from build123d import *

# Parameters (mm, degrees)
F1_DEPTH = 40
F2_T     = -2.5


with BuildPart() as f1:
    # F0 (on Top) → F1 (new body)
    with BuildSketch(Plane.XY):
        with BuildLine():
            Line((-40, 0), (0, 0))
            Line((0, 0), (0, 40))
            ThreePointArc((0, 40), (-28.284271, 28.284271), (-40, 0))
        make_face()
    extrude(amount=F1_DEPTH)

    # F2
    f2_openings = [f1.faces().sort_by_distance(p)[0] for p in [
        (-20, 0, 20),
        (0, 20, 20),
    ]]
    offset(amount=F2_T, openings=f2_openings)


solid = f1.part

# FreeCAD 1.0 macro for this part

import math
import FreeCAD as App
import Part
import Sketcher
Q = App.Units.Quantity


def faces_at(feature, points):
    """Names of the faces that lie closest to the given points."""
    faces = feature.Shape.Faces
    near = lambda p: min(range(len(faces)), key=lambda i: faces[i].distToShape(Part.Vertex(*p))[0])
    return sorted({f"Face{near(p) + 1}" for p in points})

doc = App.newDocument("Part")
body = doc.addObject("PartDesign::Body", "Body")

# Sketch on XY plane
sketch1 = body.newObject("Sketcher::SketchObject", "Sketch")
sketch1.AttachmentSupport = (doc.getObject("XY_Plane"), [""])
sketch1.MapMode = "FlatFace"
sketch1.addGeometry([
    Part.LineSegment(App.Vector(-40, 0, 0), App.Vector(0, 0, 0)),
    Part.LineSegment(App.Vector(0, 0, 0), App.Vector(0, 40, 0)),
    Part.ArcOfCircle(Part.Circle(App.Vector(0.000001, -0.000001, 0), App.Vector(0, 0, 1), 40.000001), math.radians(90.000001), math.radians(179.999999)),
], False)
sketch1.addConstraint([
    Sketcher.Constraint("Coincident", 0, 2, 1, 1),
    Sketcher.Constraint("Coincident", 1, 2, 2, 1),
    Sketcher.Constraint("Coincident", 2, 2, 0, 1),
    Sketcher.Constraint("Horizontal", 0),
    Sketcher.Constraint("Vertical", 1),
    Sketcher.Constraint("Coincident", 2, 3, -1, 1),
    Sketcher.Constraint("Coincident", 0, 2, -1, 1),
    Sketcher.Constraint("Radius", 2, Q("40.000001 mm")),
])
pad1 = body.newObject("PartDesign::Pad", "Pad")
pad1.Profile = sketch1
pad1.Length = 40
doc.recompute()

thickness = body.newObject("PartDesign::Thickness", "Thickness")
thickness.Base = (pad1, faces_at(pad1, [(-20, 0, 20), (0, 20, 20)]))
thickness.Value = 2.5
thickness.Reversed = True
thickness.Join = "Arc"

doc.recompute()
